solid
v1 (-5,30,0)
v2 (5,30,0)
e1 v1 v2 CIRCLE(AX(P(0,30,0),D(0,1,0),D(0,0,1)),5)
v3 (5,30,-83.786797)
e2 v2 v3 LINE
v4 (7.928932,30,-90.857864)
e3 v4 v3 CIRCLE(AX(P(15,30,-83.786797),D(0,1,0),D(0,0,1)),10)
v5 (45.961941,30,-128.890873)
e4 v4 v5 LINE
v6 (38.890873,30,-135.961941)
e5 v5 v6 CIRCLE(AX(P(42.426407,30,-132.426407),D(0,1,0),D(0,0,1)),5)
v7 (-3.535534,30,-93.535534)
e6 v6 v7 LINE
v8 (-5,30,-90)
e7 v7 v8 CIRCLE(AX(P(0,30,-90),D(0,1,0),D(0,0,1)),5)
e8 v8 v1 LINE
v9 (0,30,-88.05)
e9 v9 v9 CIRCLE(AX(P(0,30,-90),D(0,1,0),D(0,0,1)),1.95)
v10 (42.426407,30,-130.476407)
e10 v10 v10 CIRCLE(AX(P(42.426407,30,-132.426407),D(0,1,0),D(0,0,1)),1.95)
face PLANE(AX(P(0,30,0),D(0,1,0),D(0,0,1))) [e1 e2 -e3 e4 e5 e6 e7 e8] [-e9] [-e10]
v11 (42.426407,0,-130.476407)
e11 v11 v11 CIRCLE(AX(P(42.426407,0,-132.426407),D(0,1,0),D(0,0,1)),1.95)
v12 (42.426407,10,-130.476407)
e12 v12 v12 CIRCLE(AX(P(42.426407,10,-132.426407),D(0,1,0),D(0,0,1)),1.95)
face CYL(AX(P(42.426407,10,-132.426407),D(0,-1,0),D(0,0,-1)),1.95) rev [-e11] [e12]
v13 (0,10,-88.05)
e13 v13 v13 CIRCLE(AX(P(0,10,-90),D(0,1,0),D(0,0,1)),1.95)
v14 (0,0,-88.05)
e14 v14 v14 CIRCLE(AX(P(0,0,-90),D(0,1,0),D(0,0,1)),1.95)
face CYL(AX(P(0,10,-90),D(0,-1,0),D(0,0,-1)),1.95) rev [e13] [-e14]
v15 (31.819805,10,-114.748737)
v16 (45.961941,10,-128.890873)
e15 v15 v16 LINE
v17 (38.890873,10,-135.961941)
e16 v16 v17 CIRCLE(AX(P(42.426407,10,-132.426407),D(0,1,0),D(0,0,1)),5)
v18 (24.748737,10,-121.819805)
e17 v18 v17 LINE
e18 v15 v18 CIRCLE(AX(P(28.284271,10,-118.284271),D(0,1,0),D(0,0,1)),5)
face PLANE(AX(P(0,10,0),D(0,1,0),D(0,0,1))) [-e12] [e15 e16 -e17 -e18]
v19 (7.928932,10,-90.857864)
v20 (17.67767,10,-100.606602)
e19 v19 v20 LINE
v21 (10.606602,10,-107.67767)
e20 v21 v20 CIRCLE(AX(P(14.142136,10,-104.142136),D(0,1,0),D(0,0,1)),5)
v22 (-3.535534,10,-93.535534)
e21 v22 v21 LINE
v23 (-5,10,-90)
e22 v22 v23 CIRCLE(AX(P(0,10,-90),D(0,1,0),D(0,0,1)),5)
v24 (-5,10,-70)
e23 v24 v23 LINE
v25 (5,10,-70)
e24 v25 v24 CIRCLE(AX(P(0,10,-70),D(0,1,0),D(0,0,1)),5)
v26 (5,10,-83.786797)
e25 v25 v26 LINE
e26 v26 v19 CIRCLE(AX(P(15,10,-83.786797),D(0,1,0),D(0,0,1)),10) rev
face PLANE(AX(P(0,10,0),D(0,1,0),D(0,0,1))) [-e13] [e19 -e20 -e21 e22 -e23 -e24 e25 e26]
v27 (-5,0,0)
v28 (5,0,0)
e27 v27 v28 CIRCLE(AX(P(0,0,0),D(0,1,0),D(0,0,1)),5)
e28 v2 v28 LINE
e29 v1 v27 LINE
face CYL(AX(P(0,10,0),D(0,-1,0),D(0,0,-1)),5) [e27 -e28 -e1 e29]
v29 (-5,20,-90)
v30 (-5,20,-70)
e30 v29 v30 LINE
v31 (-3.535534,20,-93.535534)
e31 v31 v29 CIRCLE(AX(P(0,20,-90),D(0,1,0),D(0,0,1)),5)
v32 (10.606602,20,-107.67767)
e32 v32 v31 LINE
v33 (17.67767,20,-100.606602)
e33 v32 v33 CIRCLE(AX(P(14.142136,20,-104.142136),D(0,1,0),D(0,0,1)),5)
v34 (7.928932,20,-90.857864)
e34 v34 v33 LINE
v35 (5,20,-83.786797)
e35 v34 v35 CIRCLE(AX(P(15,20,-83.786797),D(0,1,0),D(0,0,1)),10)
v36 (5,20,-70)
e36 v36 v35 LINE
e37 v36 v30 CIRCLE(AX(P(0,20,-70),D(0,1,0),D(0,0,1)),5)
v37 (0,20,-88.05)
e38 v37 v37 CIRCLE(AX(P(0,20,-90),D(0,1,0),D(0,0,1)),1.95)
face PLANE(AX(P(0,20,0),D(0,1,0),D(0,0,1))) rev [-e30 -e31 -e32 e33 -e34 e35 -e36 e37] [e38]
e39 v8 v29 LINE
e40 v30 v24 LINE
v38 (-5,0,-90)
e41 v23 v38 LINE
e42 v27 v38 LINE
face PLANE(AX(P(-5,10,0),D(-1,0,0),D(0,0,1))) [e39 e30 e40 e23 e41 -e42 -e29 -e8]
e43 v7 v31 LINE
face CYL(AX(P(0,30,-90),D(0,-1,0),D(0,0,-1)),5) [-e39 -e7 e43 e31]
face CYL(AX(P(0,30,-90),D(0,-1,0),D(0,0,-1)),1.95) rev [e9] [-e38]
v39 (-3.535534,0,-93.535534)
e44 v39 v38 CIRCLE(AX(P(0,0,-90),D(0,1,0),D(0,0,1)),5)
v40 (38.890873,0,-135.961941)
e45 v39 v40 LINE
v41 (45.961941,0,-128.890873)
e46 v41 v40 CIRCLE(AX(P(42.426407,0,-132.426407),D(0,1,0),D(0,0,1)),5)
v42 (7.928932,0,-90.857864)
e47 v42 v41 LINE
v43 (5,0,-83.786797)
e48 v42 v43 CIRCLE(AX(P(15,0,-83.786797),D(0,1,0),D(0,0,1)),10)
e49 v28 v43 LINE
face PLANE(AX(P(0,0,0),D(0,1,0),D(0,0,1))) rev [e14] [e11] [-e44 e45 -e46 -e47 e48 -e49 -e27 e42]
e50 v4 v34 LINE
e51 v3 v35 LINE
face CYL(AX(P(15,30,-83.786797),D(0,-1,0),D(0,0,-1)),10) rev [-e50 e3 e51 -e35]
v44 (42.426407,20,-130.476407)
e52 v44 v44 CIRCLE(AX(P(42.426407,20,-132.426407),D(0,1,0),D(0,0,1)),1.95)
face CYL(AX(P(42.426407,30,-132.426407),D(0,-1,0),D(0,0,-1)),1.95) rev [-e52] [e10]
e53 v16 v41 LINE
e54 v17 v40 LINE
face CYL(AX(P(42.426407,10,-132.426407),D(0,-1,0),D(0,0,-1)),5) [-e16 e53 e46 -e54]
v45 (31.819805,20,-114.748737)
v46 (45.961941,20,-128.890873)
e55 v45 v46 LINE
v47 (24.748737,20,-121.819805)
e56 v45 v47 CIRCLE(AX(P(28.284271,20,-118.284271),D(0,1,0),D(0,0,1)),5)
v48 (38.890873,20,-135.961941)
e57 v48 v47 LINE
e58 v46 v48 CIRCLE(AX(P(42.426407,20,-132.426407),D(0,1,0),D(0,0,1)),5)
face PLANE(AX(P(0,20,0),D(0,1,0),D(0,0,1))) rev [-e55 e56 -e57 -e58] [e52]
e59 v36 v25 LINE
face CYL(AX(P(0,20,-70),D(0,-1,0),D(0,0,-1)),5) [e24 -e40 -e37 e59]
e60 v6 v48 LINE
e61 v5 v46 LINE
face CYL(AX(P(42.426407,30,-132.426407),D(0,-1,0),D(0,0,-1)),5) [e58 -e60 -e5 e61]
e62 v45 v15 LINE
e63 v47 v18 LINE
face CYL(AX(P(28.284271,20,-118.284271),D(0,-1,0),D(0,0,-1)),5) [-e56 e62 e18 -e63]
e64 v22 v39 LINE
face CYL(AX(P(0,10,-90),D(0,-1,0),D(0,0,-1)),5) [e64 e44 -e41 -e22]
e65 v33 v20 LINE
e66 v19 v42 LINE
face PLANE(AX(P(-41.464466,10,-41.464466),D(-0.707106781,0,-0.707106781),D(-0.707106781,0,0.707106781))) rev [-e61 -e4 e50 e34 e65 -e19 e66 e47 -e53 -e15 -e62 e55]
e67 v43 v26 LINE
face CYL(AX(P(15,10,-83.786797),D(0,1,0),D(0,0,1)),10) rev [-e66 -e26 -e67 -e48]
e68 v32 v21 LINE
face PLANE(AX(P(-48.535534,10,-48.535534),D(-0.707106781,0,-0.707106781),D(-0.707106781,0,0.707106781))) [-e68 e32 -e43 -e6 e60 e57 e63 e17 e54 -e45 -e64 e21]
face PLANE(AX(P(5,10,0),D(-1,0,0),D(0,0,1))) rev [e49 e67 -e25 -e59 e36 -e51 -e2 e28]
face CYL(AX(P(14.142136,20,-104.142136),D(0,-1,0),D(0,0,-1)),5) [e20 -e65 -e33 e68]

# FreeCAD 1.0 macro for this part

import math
import FreeCAD as App
import Part
import Sketcher
Q = App.Units.Quantity


def edges_at(feature, points):
    """Names of the edges that pass closest to the given points."""
    edges = feature.Shape.Edges
    near = lambda p: min(range(len(edges)), key=lambda i: edges[i].distToShape(Part.Vertex(*p))[0])
    return sorted({f"Edge{near(p) + 1}" for p in points})

doc = App.newDocument("Part")
body = doc.addObject("PartDesign::Body", "Body")

sketch1 = doc.addObject("Sketcher::SketchObject", "Sketch")
body.addObject(sketch1)
sketch1.AttachmentSupport = (doc.XZ_Plane, [""])
sketch1.MapMode = "FlatFace"
sketch1.addGeometry([
    Part.LineSegment(App.Vector(-5, -90, 0), App.Vector(-5, 0, 0)),
    Part.ArcOfCircle(Part.Circle(App.Vector(0, 0, 0), App.Vector(0, 0, 1), 5), math.radians(0), math.radians(180)),
    Part.LineSegment(App.Vector(5, 0, 0), App.Vector(5, -87.9, 0)),
    Part.LineSegment(App.Vector(5, -87.9, 0), App.Vector(46, -128.9, 0)),
    Part.ArcOfCircle(Part.Circle(App.Vector(42.4, -132.4, 0), App.Vector(0, 0, 1), 5), math.radians(-135), math.radians(45)),
    Part.LineSegment(App.Vector(38.9, -136, 0), App.Vector(-3.5, -93.5, 0)),
    Part.ArcOfCircle(Part.Circle(App.Vector(0, -90, 0), App.Vector(0, 0, 1), 5), math.radians(180), math.radians(225)),
    Part.Circle(App.Vector(0, -90, 0), App.Vector(0, 0, 1), 1.9),
    Part.Circle(App.Vector(42.4, -132.4, 0), App.Vector(0, 0, 1), 1.9),
], False)
sketch1.addConstraint([
    Sketcher.Constraint("Tangent", 0, 2, 1, 2),
    Sketcher.Constraint("Tangent", 1, 1, 2, 1),
    Sketcher.Constraint("Coincident", 2, 2, 3, 1),
    Sketcher.Constraint("Tangent", 3, 2, 4, 2),
    Sketcher.Constraint("Tangent", 4, 1, 5, 1),
    Sketcher.Constraint("Tangent", 5, 2, 6, 2),
    Sketcher.Constraint("Tangent", 6, 1, 0, 1),
    Sketcher.Constraint("Vertical", 0),
    Sketcher.Constraint("Vertical", 2),
    Sketcher.Constraint("Coincident", 1, 3, -1, 1),
    Sketcher.Constraint("Coincident", 7, 3, 6, 3),
    Sketcher.Constraint("Coincident", 8, 3, 4, 3),
    Sketcher.Constraint("Equal", 1, 4),
    Sketcher.Constraint("Equal", 4, 6),
    Sketcher.Constraint("Equal", 7, 8),
    Sketcher.Constraint("Parallel", 3, 5),
    Sketcher.Constraint("Radius", 1, 5.0),
    Sketcher.Constraint("Diameter", 7, 3.9),
    Sketcher.Constraint("DistanceY", 0, 1, 0, 2, 90.0),
    Sketcher.Constraint("Angle", 3, Q("-45 deg")),
    Sketcher.Constraint("Distance", 5, 60.0),
])
pad1 = doc.addObject("PartDesign::Pad", "Pad")
body.addObject(pad1)
pad1.Profile = sketch1
pad1.Length = 10
pad1.Reversed = True
doc.recompute()

fillet = doc.addObject("PartDesign::Fillet", "Fillet")
body.addObject(fillet)
fillet.Base = (pad1, edges_at(pad1, [(5, 5, -87.929)]))
fillet.Radius = 10

sketch2 = doc.addObject("Sketcher::SketchObject", "Sketch001")
body.addObject(sketch2)
sketch2.AttachmentSupport = (doc.XZ_Plane, [""])
sketch2.MapMode = "FlatFace"
sketch2.AttachmentOffset = App.Placement(App.Vector(0, 0, -10), App.Rotation())
sketch2.addGeometry([
    Part.LineSegment(App.Vector(-5, -70, 0), App.Vector(-5, 0, 0)),
    Part.ArcOfCircle(Part.Circle(App.Vector(0, 0, 0), App.Vector(0, 0, 1), 5), math.radians(0), math.radians(180)),
    Part.LineSegment(App.Vector(5, 0, 0), App.Vector(5, -70, 0)),
    Part.ArcOfCircle(Part.Circle(App.Vector(0, -70, 0), App.Vector(0, 0, 1), 5), math.radians(180), math.radians(360)),
    Part.LineSegment(App.Vector(17.7, -100.6, 0), App.Vector(31.8, -114.7, 0)),
    Part.ArcOfCircle(Part.Circle(App.Vector(28.3, -118.3, 0), App.Vector(0, 0, 1), 5), math.radians(-135), math.radians(45)),
    Part.LineSegment(App.Vector(24.7, -121.8, 0), App.Vector(10.6, -107.7, 0)),
    Part.ArcOfCircle(Part.Circle(App.Vector(14.1, -104.1, 0), App.Vector(0, 0, 1), 5), math.radians(45), math.radians(225)),
], False)
sketch2.addConstraint([
    Sketcher.Constraint("Tangent", 0, 2, 1, 2),
    Sketcher.Constraint("Tangent", 1, 1, 2, 1),
    Sketcher.Constraint("Tangent", 2, 2, 3, 2),
    Sketcher.Constraint("Tangent", 3, 1, 0, 1),
    Sketcher.Constraint("Tangent", 4, 2, 5, 2),
    Sketcher.Constraint("Tangent", 5, 1, 6, 1),
    Sketcher.Constraint("Tangent", 6, 2, 7, 2),
    Sketcher.Constraint("Tangent", 7, 1, 4, 1),
    Sketcher.Constraint("Vertical", 0),
    Sketcher.Constraint("Vertical", 2),
    Sketcher.Constraint("Coincident", 1, 3, -1, 1),
    Sketcher.Constraint("Equal", 3, 5),
    Sketcher.Constraint("Equal", 5, 7),
    Sketcher.Constraint("Radius", 1, 5.0),
    Sketcher.Constraint("DistanceY", 0, 1, 0, 2, 70.0),
    Sketcher.Constraint("Angle", 4, Q("-45 deg")),
    Sketcher.Constraint("Distance", 4, 20.0),
    Sketcher.Constraint("DistanceX", -1, 1, 6, 2, 10.606602),
    Sketcher.Constraint("DistanceY", 7, 1, -1, 1, 100.606602),
])
pad2 = doc.addObject("PartDesign::Pad", "Pad001")
body.addObject(pad2)
pad2.Profile = sketch2
pad2.Length = 10
pad2.Reversed = True

sketch3 = doc.addObject("Sketcher::SketchObject", "Sketch002")
body.addObject(sketch3)
sketch3.AttachmentSupport = (doc.XZ_Plane, [""])
sketch3.MapMode = "FlatFace"
sketch3.AttachmentOffset = App.Placement(App.Vector(0, 0, -20), App.Rotation())
sketch3.addGeometry([
    Part.LineSegment(App.Vector(31.8, -114.7, 0), App.Vector(46, -128.9, 0)),
    Part.ArcOfCircle(Part.Circle(App.Vector(42.4, -132.4, 0), App.Vector(0, 0, 1), 5), math.radians(-135), math.radians(45)),
    Part.LineSegment(App.Vector(38.9, -136, 0), App.Vector(24.7, -121.8, 0)),
    Part.LineSegment(App.Vector(24.7, -121.8, 0), App.Vector(10.6, -107.7, 0)),
    Part.LineSegment(App.Vector(10.6, -107.7, 0), App.Vector(-3.5, -93.5, 0)),
    Part.ArcOfCircle(Part.Circle(App.Vector(0, -90, 0), App.Vector(0, 0, 1), 5), math.radians(180), math.radians(225)),
    Part.LineSegment(App.Vector(-5, -90, 0), App.Vector(-5, 0, 0)),
    Part.ArcOfCircle(Part.Circle(App.Vector(0, 0, 0), App.Vector(0, 0, 1), 5), math.radians(0), math.radians(180)),
    Part.LineSegment(App.Vector(5, 0, 0), App.Vector(5, -83.8, 0)),
    Part.ArcOfCircle(Part.Circle(App.Vector(15, -83.8, 0), App.Vector(0, 0, 1), 10), math.radians(180), math.radians(225)),
    Part.LineSegment(App.Vector(7.9, -90.9, 0), App.Vector(17.7, -100.6, 0)),
    Part.LineSegment(App.Vector(17.7, -100.6, 0), App.Vector(31.8, -114.7, 0)),
    Part.Circle(App.Vector(42.4, -132.4, 0), App.Vector(0, 0, 1), 1.9),
    Part.Circle(App.Vector(0, -90, 0), App.Vector(0, 0, 1), 1.9),
], False)
sketch3.addConstraint([
    Sketcher.Constraint("Tangent", 0, 2, 1, 2),
    Sketcher.Constraint("Tangent", 1, 1, 2, 1),
    Sketcher.Constraint("Coincident", 2, 2, 3, 1),
    Sketcher.Constraint("Coincident", 3, 2, 4, 1),
    Sketcher.Constraint("Tangent", 4, 2, 5, 2),
    Sketcher.Constraint("Tangent", 5, 1, 6, 1),
    Sketcher.Constraint("Tangent", 6, 2, 7, 2),
    Sketcher.Constraint("Tangent", 7, 1, 8, 1),
    Sketcher.Constraint("Tangent", 8, 2, 9, 1),
    Sketcher.Constraint("Tangent", 9, 2, 10, 1),
    Sketcher.Constraint("Coincident", 10, 2, 11, 1),
    Sketcher.Constraint("Coincident", 11, 2, 0, 1),
    Sketcher.Constraint("Vertical", 6),
    Sketcher.Constraint("Vertical", 8),
    Sketcher.Constraint("Coincident", 7, 3, -1, 1),
    Sketcher.Constraint("Coincident", 12, 3, 1, 3),
    Sketcher.Constraint("Coincident", 13, 3, 5, 3),
    Sketcher.Constraint("Equal", 1, 5),
    Sketcher.Constraint("Equal", 5, 7),
    Sketcher.Constraint("Equal", 12, 13),
    Sketcher.Constraint("Parallel", 0, 2),
    Sketcher.Constraint("Parallel", 2, 3),
    Sketcher.Constraint("Parallel", 3, 4),
    Sketcher.Constraint("Parallel", 4, 10),
    Sketcher.Constraint("Parallel", 10, 11),
    Sketcher.Constraint("Equal", 0, 2),
    Sketcher.Constraint("Equal", 2, 3),
    Sketcher.Constraint("Equal", 3, 4),
    Sketcher.Constraint("Equal", 4, 11),
    Sketcher.Constraint("Radius", 1, 5.0),
    Sketcher.Constraint("Radius", 9, 10.0),
    Sketcher.Constraint("Diameter", 12, 3.9),
    Sketcher.Constraint("DistanceY", 6, 1, 6, 2, 90.0),
    Sketcher.Constraint("Angle", 0, Q("-45 deg")),
    Sketcher.Constraint("Distance", 0, 20.0),
])
pad3 = doc.addObject("PartDesign::Pad", "Pad002")
body.addObject(pad3)
pad3.Profile = sketch3
pad3.Length = 10
pad3.Reversed = True

doc.recompute()
